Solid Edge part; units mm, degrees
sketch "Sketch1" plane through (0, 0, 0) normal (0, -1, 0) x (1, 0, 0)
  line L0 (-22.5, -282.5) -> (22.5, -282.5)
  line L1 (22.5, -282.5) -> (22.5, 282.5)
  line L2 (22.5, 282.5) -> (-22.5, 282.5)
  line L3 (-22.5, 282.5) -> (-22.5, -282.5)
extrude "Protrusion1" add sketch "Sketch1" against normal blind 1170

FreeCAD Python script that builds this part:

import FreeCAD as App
import Part
import Sketcher
from FreeCAD import Vector


def add_polygon(sketch, points):
    """Adds a closed chain of lines whose ends are joined by coincident constraints."""
    first, n = sketch.GeometryCount, len(points)
    for a, b in zip(points, points[1:] + points[:1]):
        sketch.addGeometry(Part.LineSegment(App.Vector(*a, 0), App.Vector(*b, 0)), False)
    for i in range(n):
        sketch.addConstraint(Sketcher.Constraint("Coincident", first + i, 2, first + (i + 1) % n, 1))

doc = App.newDocument("Part")
params = doc.addObject("Spreadsheet::Sheet", "Params")
for row, (alias, value) in enumerate([
    ("sketch1_width", "45 mm"),
    ("sketch1_height", "565 mm"),
    ("pad1_length", "1170 mm"),
], start=1):
    params.set(f"A{row}", alias)
    params.set(f"B{row}", "=" + value)
    params.setAlias(f"B{row}", alias)

body = doc.addObject("PartDesign::Body", "Body")

# Sketch on XZ plane
sketch1 = body.newObject("Sketcher::SketchObject", "Sketch")
sketch1.AttachmentSupport = (doc.getObject("XZ_Plane"), [""])
sketch1.MapMode = "FlatFace"
add_polygon(sketch1, [(-22, 282), (-22, -282), (22, -282), (22, 282)])  # lines 0-3
sketch1.addConstraint(Sketcher.Constraint("Vertical", 0))
sketch1.addConstraint(Sketcher.Constraint("Horizontal", 1))
sketch1.addConstraint(Sketcher.Constraint("Vertical", 2))
sketch1.addConstraint(Sketcher.Constraint("Horizontal", 3))
sketch1.addConstraint(Sketcher.Constraint("Symmetric", 0, 2, 2, 2, -1, 1))
sketch1.addConstraint(Sketcher.Constraint("DistanceX", 1, 1, 1, 2, 45.0))
sketch1.addConstraint(Sketcher.Constraint("DistanceY", 0, 2, 0, 1, 565.0))
sketch1.setExpression("Constraints[9]", "Params.sketch1_width")
sketch1.setExpression("Constraints[10]", "Params.sketch1_height")
pad1 = body.newObject("PartDesign::Pad", "Pad")
pad1.Profile = sketch1
pad1.setExpression("Length", "Params.pad1_length")
pad1.Reversed = True

doc.recompute()
